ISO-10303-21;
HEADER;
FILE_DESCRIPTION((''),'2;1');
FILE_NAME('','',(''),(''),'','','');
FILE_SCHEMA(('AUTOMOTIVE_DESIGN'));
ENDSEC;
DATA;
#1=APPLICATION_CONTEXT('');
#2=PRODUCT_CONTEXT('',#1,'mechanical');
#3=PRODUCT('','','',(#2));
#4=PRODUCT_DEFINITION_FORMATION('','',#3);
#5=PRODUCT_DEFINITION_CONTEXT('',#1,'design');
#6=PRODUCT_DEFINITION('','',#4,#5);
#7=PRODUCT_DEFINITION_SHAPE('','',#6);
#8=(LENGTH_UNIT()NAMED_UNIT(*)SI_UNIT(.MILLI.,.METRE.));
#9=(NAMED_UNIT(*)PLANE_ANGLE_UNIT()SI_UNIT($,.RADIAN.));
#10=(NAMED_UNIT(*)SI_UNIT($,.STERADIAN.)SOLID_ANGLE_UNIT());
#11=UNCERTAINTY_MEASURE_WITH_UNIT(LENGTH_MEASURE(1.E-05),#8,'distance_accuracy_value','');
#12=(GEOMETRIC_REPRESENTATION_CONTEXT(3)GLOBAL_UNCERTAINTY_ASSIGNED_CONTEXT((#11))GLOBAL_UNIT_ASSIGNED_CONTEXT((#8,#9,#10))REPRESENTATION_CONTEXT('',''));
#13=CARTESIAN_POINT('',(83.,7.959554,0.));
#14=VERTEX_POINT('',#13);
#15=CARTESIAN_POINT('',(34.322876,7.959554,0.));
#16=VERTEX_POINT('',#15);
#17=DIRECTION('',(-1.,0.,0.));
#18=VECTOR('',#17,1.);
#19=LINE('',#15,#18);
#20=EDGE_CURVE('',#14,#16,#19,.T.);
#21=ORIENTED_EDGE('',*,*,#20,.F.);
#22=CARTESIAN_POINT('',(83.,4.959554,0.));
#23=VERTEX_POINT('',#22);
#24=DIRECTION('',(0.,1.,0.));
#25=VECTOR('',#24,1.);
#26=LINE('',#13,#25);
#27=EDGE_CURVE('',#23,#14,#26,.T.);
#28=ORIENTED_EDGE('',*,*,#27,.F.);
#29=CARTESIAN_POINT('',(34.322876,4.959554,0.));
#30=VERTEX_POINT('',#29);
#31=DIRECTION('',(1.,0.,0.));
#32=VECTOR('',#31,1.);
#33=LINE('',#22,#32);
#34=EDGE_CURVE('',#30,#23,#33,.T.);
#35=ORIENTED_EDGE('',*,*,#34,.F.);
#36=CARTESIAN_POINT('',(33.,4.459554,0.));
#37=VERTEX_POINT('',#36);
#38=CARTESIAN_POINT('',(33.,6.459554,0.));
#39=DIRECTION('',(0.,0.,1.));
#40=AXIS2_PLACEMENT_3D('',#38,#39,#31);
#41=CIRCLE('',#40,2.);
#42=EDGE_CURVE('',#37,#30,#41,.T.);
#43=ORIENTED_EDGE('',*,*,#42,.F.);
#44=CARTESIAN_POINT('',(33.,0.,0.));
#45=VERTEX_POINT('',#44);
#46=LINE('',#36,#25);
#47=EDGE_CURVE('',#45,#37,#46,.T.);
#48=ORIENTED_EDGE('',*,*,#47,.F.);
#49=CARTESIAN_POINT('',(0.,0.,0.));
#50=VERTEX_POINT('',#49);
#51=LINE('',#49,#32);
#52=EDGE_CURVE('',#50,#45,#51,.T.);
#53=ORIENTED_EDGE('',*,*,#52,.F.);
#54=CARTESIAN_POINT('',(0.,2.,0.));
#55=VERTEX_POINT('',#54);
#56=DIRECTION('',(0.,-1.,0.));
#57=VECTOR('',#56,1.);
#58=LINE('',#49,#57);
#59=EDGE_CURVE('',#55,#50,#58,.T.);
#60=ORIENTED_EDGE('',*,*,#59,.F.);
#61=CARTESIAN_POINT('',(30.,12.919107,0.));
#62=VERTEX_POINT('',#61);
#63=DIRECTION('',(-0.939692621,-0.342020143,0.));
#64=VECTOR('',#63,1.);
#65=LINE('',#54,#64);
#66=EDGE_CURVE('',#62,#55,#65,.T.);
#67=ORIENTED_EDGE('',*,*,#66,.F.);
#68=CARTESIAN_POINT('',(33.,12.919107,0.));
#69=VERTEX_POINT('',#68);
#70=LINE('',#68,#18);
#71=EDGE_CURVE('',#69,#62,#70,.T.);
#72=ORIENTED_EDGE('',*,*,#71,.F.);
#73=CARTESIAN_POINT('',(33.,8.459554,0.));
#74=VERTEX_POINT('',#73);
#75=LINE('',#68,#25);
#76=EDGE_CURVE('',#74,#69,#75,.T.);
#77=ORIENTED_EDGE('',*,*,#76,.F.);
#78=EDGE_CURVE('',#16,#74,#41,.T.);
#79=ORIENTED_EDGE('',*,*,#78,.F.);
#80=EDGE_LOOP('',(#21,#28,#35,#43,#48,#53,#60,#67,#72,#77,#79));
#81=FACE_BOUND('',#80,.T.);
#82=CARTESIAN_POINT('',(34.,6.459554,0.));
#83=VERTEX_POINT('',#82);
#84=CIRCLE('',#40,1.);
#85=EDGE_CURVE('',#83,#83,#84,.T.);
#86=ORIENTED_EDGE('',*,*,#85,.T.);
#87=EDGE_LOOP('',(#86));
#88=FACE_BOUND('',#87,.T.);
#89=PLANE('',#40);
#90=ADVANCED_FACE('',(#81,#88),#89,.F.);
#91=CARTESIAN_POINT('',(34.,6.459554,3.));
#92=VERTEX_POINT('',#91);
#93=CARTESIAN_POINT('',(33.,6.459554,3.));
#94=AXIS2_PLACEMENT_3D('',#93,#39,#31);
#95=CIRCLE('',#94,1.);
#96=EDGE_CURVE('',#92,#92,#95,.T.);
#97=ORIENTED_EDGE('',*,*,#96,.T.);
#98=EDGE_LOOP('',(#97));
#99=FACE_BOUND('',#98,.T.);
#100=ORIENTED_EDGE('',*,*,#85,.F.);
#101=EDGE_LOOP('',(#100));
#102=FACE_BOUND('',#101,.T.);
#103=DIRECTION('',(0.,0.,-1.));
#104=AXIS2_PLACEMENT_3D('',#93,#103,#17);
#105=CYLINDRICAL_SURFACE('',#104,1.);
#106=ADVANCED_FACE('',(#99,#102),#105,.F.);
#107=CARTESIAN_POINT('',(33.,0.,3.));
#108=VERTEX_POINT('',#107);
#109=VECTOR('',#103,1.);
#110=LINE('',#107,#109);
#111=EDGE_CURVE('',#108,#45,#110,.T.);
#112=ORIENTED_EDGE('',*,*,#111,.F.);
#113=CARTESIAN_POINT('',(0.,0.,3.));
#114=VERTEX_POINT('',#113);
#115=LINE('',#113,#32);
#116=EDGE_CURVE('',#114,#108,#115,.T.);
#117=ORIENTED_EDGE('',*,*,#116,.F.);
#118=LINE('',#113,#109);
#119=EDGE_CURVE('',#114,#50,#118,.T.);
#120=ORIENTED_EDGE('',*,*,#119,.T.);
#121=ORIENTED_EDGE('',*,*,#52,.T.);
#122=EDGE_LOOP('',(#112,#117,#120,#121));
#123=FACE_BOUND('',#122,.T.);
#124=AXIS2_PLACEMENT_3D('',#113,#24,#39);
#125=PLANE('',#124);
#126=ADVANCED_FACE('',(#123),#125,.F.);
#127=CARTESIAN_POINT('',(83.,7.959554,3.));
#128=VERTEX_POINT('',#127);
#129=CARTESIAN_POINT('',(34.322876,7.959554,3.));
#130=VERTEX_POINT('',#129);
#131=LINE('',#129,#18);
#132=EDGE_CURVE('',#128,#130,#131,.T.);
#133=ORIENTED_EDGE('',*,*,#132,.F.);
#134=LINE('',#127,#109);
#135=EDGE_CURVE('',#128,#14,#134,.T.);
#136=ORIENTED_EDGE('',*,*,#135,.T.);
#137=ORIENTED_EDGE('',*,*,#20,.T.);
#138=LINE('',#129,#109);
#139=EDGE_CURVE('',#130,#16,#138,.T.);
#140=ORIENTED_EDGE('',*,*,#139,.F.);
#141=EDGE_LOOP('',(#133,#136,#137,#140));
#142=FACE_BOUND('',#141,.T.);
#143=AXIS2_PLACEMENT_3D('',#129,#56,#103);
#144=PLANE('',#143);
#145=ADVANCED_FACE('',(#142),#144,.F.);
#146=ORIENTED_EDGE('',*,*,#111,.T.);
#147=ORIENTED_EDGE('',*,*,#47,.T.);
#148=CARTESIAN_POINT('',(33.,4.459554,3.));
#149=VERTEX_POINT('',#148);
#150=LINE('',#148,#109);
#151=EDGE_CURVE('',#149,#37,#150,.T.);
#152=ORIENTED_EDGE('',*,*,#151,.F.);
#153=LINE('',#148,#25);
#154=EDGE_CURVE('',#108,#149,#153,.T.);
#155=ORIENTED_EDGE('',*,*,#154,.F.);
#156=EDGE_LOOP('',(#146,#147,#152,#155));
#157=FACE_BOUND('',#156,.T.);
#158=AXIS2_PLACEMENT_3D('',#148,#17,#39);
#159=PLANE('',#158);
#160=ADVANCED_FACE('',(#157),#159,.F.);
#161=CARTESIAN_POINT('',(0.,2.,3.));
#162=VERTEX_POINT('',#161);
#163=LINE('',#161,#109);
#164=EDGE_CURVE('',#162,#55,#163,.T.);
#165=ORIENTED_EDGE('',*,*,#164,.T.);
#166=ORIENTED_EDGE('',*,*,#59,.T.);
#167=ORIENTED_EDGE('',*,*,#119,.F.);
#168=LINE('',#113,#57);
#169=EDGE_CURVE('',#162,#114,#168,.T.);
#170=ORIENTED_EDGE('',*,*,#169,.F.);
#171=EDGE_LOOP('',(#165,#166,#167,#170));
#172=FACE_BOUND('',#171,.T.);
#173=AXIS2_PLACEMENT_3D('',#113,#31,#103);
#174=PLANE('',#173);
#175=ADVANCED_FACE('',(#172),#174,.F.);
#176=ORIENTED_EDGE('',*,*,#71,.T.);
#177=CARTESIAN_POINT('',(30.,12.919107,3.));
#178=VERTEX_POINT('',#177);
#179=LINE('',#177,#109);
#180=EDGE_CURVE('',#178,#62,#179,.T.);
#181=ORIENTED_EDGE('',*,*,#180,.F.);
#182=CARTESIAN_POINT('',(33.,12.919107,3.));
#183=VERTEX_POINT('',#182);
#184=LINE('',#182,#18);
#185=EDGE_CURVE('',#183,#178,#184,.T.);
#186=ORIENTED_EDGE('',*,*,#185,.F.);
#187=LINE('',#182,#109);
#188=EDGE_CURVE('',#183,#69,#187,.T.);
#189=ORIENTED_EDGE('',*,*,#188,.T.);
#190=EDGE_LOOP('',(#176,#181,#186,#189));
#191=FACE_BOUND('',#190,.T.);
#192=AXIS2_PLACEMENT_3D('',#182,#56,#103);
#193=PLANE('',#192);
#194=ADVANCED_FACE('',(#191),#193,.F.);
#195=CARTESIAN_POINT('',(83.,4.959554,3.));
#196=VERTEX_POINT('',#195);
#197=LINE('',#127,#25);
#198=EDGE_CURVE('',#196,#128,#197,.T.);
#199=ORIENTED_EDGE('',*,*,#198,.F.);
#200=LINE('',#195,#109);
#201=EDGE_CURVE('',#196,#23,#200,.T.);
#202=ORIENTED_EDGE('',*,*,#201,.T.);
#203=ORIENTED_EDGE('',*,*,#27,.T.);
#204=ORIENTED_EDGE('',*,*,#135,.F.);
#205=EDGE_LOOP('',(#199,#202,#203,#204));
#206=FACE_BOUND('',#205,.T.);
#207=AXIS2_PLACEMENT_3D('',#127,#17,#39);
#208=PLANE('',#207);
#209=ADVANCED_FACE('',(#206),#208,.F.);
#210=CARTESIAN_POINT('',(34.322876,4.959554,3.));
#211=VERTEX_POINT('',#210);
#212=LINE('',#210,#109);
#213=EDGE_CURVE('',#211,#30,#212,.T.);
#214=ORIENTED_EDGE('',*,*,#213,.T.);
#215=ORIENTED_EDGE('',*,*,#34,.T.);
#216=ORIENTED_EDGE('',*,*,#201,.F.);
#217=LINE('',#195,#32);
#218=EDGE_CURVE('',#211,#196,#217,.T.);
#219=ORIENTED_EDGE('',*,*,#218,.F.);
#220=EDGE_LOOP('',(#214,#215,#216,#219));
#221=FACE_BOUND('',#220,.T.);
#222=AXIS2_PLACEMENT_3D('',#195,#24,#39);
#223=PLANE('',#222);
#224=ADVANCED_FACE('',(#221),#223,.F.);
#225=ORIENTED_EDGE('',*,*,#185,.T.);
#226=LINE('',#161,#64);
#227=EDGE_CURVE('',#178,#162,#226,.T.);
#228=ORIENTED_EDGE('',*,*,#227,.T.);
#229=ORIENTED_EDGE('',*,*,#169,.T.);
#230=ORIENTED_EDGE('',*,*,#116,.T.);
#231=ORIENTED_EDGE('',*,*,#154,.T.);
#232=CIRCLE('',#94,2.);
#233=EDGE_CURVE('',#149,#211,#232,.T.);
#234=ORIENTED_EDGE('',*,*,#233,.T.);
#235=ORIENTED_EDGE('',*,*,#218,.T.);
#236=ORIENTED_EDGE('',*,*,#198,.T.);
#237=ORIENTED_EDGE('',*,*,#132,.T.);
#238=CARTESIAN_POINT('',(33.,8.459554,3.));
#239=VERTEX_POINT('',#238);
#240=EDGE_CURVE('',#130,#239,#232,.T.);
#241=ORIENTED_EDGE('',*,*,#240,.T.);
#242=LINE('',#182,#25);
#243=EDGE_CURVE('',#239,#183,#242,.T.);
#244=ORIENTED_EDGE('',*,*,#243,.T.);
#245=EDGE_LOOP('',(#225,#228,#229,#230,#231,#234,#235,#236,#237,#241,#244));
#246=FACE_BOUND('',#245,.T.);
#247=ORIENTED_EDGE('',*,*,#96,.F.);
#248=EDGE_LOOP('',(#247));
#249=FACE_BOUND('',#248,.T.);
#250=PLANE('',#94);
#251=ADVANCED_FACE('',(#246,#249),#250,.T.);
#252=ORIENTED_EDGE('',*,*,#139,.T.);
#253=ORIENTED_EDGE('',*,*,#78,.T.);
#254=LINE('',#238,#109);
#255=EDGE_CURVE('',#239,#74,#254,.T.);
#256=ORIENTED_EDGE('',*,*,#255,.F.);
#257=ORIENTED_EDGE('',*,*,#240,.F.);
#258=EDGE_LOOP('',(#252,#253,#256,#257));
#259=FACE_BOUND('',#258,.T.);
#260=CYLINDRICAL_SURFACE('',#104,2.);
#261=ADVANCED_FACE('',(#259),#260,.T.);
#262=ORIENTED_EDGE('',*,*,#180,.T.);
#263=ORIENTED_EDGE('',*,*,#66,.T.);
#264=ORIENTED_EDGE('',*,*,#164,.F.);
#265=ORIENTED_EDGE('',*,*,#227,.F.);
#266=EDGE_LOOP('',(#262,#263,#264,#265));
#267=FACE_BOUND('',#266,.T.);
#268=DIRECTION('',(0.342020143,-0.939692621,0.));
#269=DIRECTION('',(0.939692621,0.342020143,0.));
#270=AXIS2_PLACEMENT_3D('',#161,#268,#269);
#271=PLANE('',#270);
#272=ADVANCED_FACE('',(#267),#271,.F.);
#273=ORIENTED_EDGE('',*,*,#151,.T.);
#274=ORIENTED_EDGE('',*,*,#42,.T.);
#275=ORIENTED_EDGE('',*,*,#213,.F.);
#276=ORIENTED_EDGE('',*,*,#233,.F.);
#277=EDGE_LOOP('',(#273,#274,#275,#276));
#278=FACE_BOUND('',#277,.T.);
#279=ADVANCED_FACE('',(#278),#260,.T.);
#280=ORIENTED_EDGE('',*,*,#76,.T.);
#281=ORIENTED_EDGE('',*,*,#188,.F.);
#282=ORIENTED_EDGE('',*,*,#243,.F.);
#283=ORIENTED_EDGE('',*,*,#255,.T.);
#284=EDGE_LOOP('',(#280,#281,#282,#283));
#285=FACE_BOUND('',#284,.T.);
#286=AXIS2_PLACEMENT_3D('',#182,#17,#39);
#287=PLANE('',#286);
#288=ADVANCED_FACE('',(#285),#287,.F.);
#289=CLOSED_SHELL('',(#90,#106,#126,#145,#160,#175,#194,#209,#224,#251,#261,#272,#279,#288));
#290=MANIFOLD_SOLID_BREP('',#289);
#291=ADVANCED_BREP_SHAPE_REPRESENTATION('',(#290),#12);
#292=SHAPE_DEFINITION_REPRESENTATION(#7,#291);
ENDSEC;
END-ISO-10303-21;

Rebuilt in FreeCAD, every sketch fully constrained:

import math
import FreeCAD as App
import Part
import Sketcher
from FreeCAD import Vector
Q = App.Units.Quantity

doc = App.newDocument("Part")
body = doc.addObject("PartDesign::Body", "Body")

# Sketch on XY plane
sketch1 = body.newObject("Sketcher::SketchObject", "Sketch")
sketch1.AttachmentSupport = (doc.getObject("XY_Plane"), [""])
sketch1.MapMode = "FlatFace"
sketch1.addGeometry([
    Part.LineSegment(Vector(0, 2, 0), Vector(0, 0, 0)),  # 0
    Part.LineSegment(Vector(0, 0, 0), Vector(33, 0, 0)),  # 1
    Part.LineSegment(Vector(33, 0, 0), Vector(33, 4.459554, 0)),  # 2
    Part.ArcOfCircle(Part.Circle(Vector(33, 6.459554, 0), Vector(0, 0, 1), 2), math.radians(-90), math.radians(-48.590378)),  # 3
    Part.LineSegment(Vector(34.322876, 4.959554, 0), Vector(83, 4.959554, 0)),  # 4
    Part.LineSegment(Vector(83, 4.959554, 0), Vector(83, 7.959554, 0)),  # 5
    Part.LineSegment(Vector(83, 7.959554, 0), Vector(34.322876, 7.959554, 0)),  # 6
    Part.ArcOfCircle(Part.Circle(Vector(33, 6.459554, 0), Vector(0, 0, 1), 2), math.radians(48.590378), math.radians(90)),  # 7
    Part.LineSegment(Vector(33, 8.459554, 0), Vector(33, 12.919107, 0)),  # 8
    Part.LineSegment(Vector(33, 12.919107, 0), Vector(30, 12.919107, 0)),  # 9
    Part.LineSegment(Vector(30, 12.919107, 0), Vector(0, 2, 0)),  # 10
    Part.Circle(Vector(33, 6.459554, 0), Vector(0, 0, 1), 1),  # 11
], False)
sketch1.addConstraint([
    Sketcher.Constraint("Coincident", 0, 2, 1, 1),
    Sketcher.Constraint("Coincident", 1, 2, 2, 1),
    Sketcher.Constraint("Coincident", 2, 2, 3, 1),
    Sketcher.Constraint("Coincident", 3, 2, 4, 1),
    Sketcher.Constraint("Coincident", 4, 2, 5, 1),
    Sketcher.Constraint("Coincident", 5, 2, 6, 1),
    Sketcher.Constraint("Coincident", 6, 2, 7, 1),
    Sketcher.Constraint("Coincident", 7, 2, 8, 1),
    Sketcher.Constraint("Coincident", 8, 2, 9, 1),
    Sketcher.Constraint("Coincident", 9, 2, 10, 1),
    Sketcher.Constraint("Coincident", 10, 2, 0, 1),
    Sketcher.Constraint("Vertical", 0),
    Sketcher.Constraint("Horizontal", 1),
    Sketcher.Constraint("Vertical", 2),
    Sketcher.Constraint("Horizontal", 4),
    Sketcher.Constraint("Vertical", 5),
    Sketcher.Constraint("Horizontal", 6),
    Sketcher.Constraint("Vertical", 8),
    Sketcher.Constraint("Horizontal", 9),
    Sketcher.Constraint("Coincident", 0, 2, -1, 1),
    Sketcher.Constraint("Coincident", 7, 3, 3, 3),
    Sketcher.Constraint("Coincident", 11, 3, 3, 3),
    Sketcher.Constraint("Equal", 3, 7),
    Sketcher.Constraint("Vertical", 11, 3, 1, 2),
    Sketcher.Constraint("Vertical", 3, 2, 6, 2),
    Sketcher.Constraint("Vertical", 2, 2, 7, 2),
    Sketcher.Constraint("Equal", 9, 5),
    Sketcher.Constraint("Equal", 2, 8),
    Sketcher.Constraint("Diameter", 11, Q("2 mm")),
    Sketcher.Constraint("Radius", 3, Q("2 mm")),
    Sketcher.Constraint("DistanceX", 1, 1, 1, 2, Q("33 mm")),
    Sketcher.Constraint("DistanceX", 9, 2, 9, 1, Q("3 mm")),
    Sketcher.Constraint("DistanceY", 0, 2, 0, 1, Q("2 mm")),
    Sketcher.Constraint("Angle", 10, Q("-160 deg")),
    Sketcher.Constraint("DistanceX", -1, 1, 4, 2, Q("83 mm")),
])
pad1 = body.newObject("PartDesign::Pad", "Pad")
pad1.Profile = sketch1
pad1.Length = 3

doc.recompute()
